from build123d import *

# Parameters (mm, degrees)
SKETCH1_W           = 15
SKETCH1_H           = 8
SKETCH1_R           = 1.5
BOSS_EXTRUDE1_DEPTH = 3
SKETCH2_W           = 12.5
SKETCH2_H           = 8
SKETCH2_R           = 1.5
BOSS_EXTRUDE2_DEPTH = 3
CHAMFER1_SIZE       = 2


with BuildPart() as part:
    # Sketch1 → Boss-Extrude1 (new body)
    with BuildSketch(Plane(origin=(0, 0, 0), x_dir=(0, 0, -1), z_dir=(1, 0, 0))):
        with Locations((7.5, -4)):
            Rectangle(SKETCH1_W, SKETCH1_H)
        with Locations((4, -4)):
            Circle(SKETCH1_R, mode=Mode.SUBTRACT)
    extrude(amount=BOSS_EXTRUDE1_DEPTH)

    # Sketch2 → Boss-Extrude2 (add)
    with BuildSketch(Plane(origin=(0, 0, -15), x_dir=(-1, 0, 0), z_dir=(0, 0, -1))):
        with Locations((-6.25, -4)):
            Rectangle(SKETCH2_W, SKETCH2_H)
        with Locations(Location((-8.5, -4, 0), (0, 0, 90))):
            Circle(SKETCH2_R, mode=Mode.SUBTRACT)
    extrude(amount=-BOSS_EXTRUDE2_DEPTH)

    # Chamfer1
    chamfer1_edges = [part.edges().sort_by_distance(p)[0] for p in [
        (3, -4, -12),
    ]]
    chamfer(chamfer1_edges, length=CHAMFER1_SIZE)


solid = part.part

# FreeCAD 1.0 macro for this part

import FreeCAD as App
import Part
import Sketcher

V = App.Vector


def edges_at(feature, points):
    """Names of the edges that pass closest to the given points."""
    edges = feature.Shape.Edges
    near = lambda p: min(range(len(edges)), key=lambda i: edges[i].distToShape(Part.Vertex(*p))[0])
    return sorted({f"Edge{near(p) + 1}" for p in points})

doc = App.newDocument("Part")
body = doc.addObject("PartDesign::Body", "Body")

sketch1 = body.newObject("Sketcher::SketchObject", "Sketch")
sketch1.AttachmentSupport = (doc.getObject("YZ_Plane"), [""])
sketch1.MapMode = "FlatFace"
sketch1.addGeometry([
    Part.LineSegment(V(0, 0, 0), V(-8, 0, 0)),
    Part.LineSegment(V(-8, 0, 0), V(-8, -15, 0)),
    Part.LineSegment(V(-8, -15, 0), V(0, -15, 0)),
    Part.LineSegment(V(0, -15, 0), V(0, 0, 0)),
    Part.Circle(V(-4, -4, 0), V(0, 0, 1), 1.5),
], False)
sketch1.addConstraint([
    Sketcher.Constraint("Coincident", 0, 2, 1, 1),
    Sketcher.Constraint("Coincident", 1, 2, 2, 1),
    Sketcher.Constraint("Coincident", 2, 2, 3, 1),
    Sketcher.Constraint("Coincident", 3, 2, 0, 1),
    Sketcher.Constraint("Horizontal", 0),
    Sketcher.Constraint("Vertical", 1),
    Sketcher.Constraint("Horizontal", 2),
    Sketcher.Constraint("Vertical", 3),
    Sketcher.Constraint("Coincident", 3, 2, -1, 1),
    Sketcher.Constraint("Diameter", 4, 3.0),
    Sketcher.Constraint("DistanceX", 0, 2, 0, 1, 8.0),
    Sketcher.Constraint("DistanceY", 1, 2, 1, 1, 15.0),
    Sketcher.Constraint("DistanceX", 4, 3, -1, 1, 4.0),
    Sketcher.Constraint("DistanceY", 4, 3, -1, 1, 4.0),
])
pad1 = body.newObject("PartDesign::Pad", "Pad")
pad1.Profile = sketch1
pad1.Length = 3

sketch2 = body.newObject("Sketcher::SketchObject", "Sketch001")
sketch2.AttachmentSupport = (doc.getObject("XY_Plane"), [""])
sketch2.MapMode = "FlatFace"
sketch2.AttachmentOffset = App.Placement(V(0, 0, -15), App.Rotation())
sketch2.addGeometry([
    Part.LineSegment(V(12.5, 0, 0), V(12.5, -8, 0)),
    Part.LineSegment(V(12.5, -8, 0), V(0, -8, 0)),
    Part.LineSegment(V(0, -8, 0), V(0, 0, 0)),
    Part.LineSegment(V(0, 0, 0), V(12.5, 0, 0)),
    Part.Circle(V(8.5, -4, 0), V(0, 0, 1), 1.5),
], False)
sketch2.addConstraint([
    Sketcher.Constraint("Coincident", 0, 2, 1, 1),
    Sketcher.Constraint("Coincident", 1, 2, 2, 1),
    Sketcher.Constraint("Coincident", 2, 2, 3, 1),
    Sketcher.Constraint("Coincident", 3, 2, 0, 1),
    Sketcher.Constraint("Vertical", 0),
    Sketcher.Constraint("Horizontal", 1),
    Sketcher.Constraint("Vertical", 2),
    Sketcher.Constraint("Horizontal", 3),
    Sketcher.Constraint("Coincident", 2, 2, -1, 1),
    Sketcher.Constraint("Diameter", 4, 3.0),
    Sketcher.Constraint("DistanceY", 0, 2, 0, 1, 8.0),
    Sketcher.Constraint("DistanceX", 1, 2, 1, 1, 12.5),
    Sketcher.Constraint("DistanceY", 4, 3, -1, 1, 4.0),
    Sketcher.Constraint("DistanceX", 4, 3, 0, 2, 4.0),
])
pad2 = body.newObject("PartDesign::Pad", "Pad001")
pad2.Profile = sketch2
pad2.Length = 3
doc.recompute()

chamfer = body.newObject("PartDesign::Chamfer", "Chamfer")
chamfer.Base = (pad2, edges_at(pad2, [(3, -4, -12)]))
chamfer.Size = 2

doc.recompute()
